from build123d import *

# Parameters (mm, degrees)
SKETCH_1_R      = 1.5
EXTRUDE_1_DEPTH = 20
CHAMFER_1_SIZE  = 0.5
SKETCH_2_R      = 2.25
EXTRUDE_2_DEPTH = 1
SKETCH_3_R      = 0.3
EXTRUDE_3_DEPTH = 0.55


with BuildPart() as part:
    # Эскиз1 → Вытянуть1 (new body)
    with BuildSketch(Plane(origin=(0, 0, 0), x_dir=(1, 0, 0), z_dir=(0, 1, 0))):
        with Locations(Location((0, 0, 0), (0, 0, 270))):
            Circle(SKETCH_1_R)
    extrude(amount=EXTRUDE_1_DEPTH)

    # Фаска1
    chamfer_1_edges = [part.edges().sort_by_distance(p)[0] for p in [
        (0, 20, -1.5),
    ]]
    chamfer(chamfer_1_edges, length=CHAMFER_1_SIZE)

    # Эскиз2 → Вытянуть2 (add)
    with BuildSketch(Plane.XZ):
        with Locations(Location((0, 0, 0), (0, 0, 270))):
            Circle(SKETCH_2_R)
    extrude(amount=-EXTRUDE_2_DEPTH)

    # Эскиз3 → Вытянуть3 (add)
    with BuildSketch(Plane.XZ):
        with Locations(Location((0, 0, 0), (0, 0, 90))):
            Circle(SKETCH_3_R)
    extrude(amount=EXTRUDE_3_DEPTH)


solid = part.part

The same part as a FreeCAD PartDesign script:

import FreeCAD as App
import Part
import Sketcher
from FreeCAD import Vector
Q = App.Units.Quantity


def edges_at(feature, points):
    """Names of the edges that pass closest to the given points."""
    edges = feature.Shape.Edges
    near = lambda p: min(range(len(edges)), key=lambda i: edges[i].distToShape(Part.Vertex(*p))[0])
    return sorted({f"Edge{near(p) + 1}" for p in points})

doc = App.newDocument("Part")
body = doc.addObject("PartDesign::Body", "Body")

# Sketch on XZ plane
sketch1 = doc.addObject("Sketcher::SketchObject", "Sketch")
body.addObject(sketch1)
sketch1.AttachmentSupport = (doc.XZ_Plane, [""])
sketch1.MapMode = "FlatFace"
sketch1.addGeometry(Part.Circle(Vector(0, 0, 0), Vector(0, 0, 1), 1.5), False)
sketch1.addConstraint([
    Sketcher.Constraint("Coincident", 0, 3, -1, 1),
    Sketcher.Constraint("Diameter", 0, Q("3 mm")),
])
pad1 = doc.addObject("PartDesign::Pad", "Pad")
body.addObject(pad1)
pad1.Profile = sketch1
pad1.Length = 20
pad1.Reversed = True
doc.recompute()

chamfer = doc.addObject("PartDesign::Chamfer", "Chamfer")
body.addObject(chamfer)
chamfer.Base = (pad1, edges_at(pad1, [(0, 20, -1.5)]))
chamfer.Size = 0.5

# Sketch on XZ plane
sketch2 = doc.addObject("Sketcher::SketchObject", "Sketch001")
body.addObject(sketch2)
sketch2.AttachmentSupport = (doc.XZ_Plane, [""])
sketch2.MapMode = "FlatFace"
sketch2.addGeometry(Part.Circle(Vector(0, 0, 0), Vector(0, 0, 1), 2.2), False)
sketch2.addConstraint([
    Sketcher.Constraint("Coincident", 0, 3, -1, 1),
    Sketcher.Constraint("Diameter", 0, Q("4.5 mm")),
])
pad2 = doc.addObject("PartDesign::Pad", "Pad001")
body.addObject(pad2)
pad2.Profile = sketch2
pad2.Length = 1
pad2.Reversed = True

# Sketch on XZ plane
sketch3 = doc.addObject("Sketcher::SketchObject", "Sketch002")
body.addObject(sketch3)
sketch3.AttachmentSupport = (doc.XZ_Plane, [""])
sketch3.MapMode = "FlatFace"
sketch3.addGeometry(Part.Circle(Vector(0, 0, 0), Vector(0, 0, 1), 0.3), False)
sketch3.addConstraint([
    Sketcher.Constraint("Coincident", 0, 3, -1, 1),
    Sketcher.Constraint("Diameter", 0, Q("0.6 mm")),
])
pad3 = doc.addObject("PartDesign::Pad", "Pad002")
body.addObject(pad3)
pad3.Profile = sketch3
pad3.Length = 0.55

doc.recompute()
